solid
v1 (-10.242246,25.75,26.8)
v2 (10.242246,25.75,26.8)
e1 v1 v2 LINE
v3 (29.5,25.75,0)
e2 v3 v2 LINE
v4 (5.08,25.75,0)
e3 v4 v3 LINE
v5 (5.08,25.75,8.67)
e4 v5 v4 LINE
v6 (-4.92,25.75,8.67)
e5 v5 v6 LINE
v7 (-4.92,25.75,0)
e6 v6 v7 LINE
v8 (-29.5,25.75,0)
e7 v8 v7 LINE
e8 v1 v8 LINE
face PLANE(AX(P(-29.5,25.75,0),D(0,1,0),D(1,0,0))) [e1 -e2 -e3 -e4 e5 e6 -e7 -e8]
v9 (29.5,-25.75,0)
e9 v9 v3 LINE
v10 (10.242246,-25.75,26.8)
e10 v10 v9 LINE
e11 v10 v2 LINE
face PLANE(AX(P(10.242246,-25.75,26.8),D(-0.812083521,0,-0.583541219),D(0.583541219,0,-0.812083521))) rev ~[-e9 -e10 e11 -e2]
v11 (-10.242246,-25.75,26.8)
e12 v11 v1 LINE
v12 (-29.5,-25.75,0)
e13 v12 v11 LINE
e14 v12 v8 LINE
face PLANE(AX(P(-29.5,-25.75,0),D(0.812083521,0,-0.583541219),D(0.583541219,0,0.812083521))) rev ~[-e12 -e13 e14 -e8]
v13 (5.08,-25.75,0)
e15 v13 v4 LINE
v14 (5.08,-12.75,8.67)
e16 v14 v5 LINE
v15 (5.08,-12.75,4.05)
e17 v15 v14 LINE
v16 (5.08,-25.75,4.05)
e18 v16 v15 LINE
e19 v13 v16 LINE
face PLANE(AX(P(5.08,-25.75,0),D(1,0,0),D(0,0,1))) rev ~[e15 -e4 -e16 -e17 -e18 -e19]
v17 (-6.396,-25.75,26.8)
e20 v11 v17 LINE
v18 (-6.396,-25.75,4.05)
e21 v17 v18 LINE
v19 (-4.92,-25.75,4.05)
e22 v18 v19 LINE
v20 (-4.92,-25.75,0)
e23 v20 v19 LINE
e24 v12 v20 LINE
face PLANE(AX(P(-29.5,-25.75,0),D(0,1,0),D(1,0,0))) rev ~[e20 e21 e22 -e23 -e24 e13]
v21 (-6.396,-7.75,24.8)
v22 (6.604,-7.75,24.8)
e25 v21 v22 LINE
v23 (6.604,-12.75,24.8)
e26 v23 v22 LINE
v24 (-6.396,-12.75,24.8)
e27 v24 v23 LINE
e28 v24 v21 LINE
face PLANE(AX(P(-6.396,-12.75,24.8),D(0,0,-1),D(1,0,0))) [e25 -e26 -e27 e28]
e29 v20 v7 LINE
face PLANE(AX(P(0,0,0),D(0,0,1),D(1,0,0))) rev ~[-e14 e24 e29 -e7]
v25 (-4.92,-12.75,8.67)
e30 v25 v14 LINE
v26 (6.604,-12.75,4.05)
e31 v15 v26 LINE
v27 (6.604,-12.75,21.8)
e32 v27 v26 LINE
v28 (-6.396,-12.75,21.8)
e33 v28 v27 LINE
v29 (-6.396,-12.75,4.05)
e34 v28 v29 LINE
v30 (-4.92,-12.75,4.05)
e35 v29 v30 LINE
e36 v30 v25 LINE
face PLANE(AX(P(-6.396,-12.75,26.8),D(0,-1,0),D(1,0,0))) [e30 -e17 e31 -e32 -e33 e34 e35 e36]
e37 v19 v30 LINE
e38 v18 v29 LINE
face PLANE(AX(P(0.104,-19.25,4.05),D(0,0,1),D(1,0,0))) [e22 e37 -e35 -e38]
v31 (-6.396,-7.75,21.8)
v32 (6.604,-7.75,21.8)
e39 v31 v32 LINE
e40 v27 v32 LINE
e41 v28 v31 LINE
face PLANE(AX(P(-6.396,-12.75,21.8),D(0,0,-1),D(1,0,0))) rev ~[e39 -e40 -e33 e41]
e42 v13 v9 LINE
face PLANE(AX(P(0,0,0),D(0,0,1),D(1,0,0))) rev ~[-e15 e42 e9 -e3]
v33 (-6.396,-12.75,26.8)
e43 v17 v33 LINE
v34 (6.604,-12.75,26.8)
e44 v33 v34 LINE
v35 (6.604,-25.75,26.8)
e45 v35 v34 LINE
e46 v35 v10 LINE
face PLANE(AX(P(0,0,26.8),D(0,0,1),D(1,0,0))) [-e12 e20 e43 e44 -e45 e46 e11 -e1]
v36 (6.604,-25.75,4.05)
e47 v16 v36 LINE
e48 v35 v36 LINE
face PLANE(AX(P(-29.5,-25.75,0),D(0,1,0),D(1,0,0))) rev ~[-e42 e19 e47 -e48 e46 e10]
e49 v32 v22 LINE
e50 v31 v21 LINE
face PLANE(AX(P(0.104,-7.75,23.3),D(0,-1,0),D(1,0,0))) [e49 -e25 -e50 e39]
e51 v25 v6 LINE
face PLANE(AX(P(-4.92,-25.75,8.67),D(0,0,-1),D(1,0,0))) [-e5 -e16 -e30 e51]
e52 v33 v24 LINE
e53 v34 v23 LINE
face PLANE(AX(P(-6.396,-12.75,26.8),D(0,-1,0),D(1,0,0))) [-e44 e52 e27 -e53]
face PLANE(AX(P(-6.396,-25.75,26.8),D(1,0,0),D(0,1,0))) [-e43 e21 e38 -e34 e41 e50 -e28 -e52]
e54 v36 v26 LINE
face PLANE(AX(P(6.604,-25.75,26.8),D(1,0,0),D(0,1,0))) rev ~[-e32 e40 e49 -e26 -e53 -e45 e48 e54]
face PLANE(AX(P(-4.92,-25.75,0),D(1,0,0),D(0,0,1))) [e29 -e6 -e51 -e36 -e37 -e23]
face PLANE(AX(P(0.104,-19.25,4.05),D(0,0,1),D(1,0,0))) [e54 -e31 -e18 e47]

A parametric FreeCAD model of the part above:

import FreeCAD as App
import Part
import Sketcher

V = App.Vector
Q = App.Units.Quantity

doc = App.newDocument("Part")
body = doc.addObject("PartDesign::Body", "Body")

# Sketch on XY plane
sketch1 = body.newObject("Sketcher::SketchObject", "Sketch")
sketch1.AttachmentSupport = (doc.getObject("XY_Plane"), [""])
sketch1.MapMode = "FlatFace"
sketch1.addGeometry([
    Part.LineSegment(V(-30, 26, 0), V(-30, -26, 0)),
    Part.LineSegment(V(-30, -26, 0), V(30, -26, 0)),
    Part.LineSegment(V(30, -26, 0), V(30, 26, 0)),
    Part.LineSegment(V(30, 26, 0), V(-30, 26, 0)),
], False)
sketch1.addConstraint([
    Sketcher.Constraint("Coincident", 0, 2, 1, 1),
    Sketcher.Constraint("Coincident", 1, 2, 2, 1),
    Sketcher.Constraint("Coincident", 2, 2, 3, 1),
    Sketcher.Constraint("Coincident", 3, 2, 0, 1),
    Sketcher.Constraint("Vertical", 0),
    Sketcher.Constraint("Horizontal", 1),
    Sketcher.Constraint("Vertical", 2),
    Sketcher.Constraint("Horizontal", 3),
    Sketcher.Constraint("Symmetric", 0, 2, 2, 2, -1, 1),
    Sketcher.Constraint("DistanceX", 1, 1, 1, 2, Q("59 mm")),
    Sketcher.Constraint("DistanceY", 0, 2, 0, 1, Q("51.5 mm")),
])
pad1 = body.newObject("PartDesign::Pad", "Pad")
pad1.Profile = sketch1
pad1.Length = 26.8

# Sketch on XZ plane
sketch2 = body.newObject("Sketcher::SketchObject", "Sketch001")
sketch2.AttachmentSupport = (doc.getObject("XZ_Plane"), [""])
sketch2.MapMode = "FlatFace"
sketch2.AttachmentOffset = App.Placement(V(0, 0, 25.75), App.Rotation())
sketch2.addGeometry([
    Part.LineSegment(V(10, 27, 0), V(30, 0, 0)),  # 0
    Part.LineSegment(V(30, 0, 0), V(30, 27, 0)),  # 1
    Part.LineSegment(V(30, 27, 0), V(10, 27, 0)),  # 2
    Part.LineSegment(V(-30, 27, 0), V(-30, 0, 0)),  # 3
    Part.LineSegment(V(-30, 0, 0), V(-10, 27, 0)),  # 4
    Part.LineSegment(V(-10, 27, 0), V(-30, 27, 0)),  # 5
], False)
sketch2.addConstraint([
    Sketcher.Constraint("Coincident", 0, 2, 1, 1),
    Sketcher.Constraint("Coincident", 1, 2, 2, 1),
    Sketcher.Constraint("Coincident", 2, 2, 0, 1),
    Sketcher.Constraint("Coincident", 3, 2, 4, 1),
    Sketcher.Constraint("Coincident", 4, 2, 5, 1),
    Sketcher.Constraint("Coincident", 5, 2, 3, 1),
    Sketcher.Constraint("Vertical", 1),
    Sketcher.Constraint("Horizontal", 2),
    Sketcher.Constraint("Vertical", 3),
    Sketcher.Constraint("Horizontal", 5),
    Sketcher.Constraint("Symmetric", 0, 2, 3, 2, -1, 1),
    Sketcher.Constraint("Symmetric", 2, 2, 4, 2, -2),
    Sketcher.Constraint("PointOnObject", 0, 2, -1),
    Sketcher.Constraint("DistanceY", 1, 1, 1, 2, Q("26.8 mm")),
    Sketcher.Constraint("Angle", 0, Q("-54.299999 deg")),
    Sketcher.Constraint("DistanceX", 3, 2, 0, 2, Q("59 mm")),
])
pocket1 = body.newObject("PartDesign::Pocket", "Pocket")
pocket1.Profile = sketch2
pocket1.Type = "ThroughAll"

# Sketch on XY plane
sketch3 = body.newObject("Sketcher::SketchObject", "Sketch002")
sketch3.AttachmentSupport = (doc.getObject("XY_Plane"), [""])
sketch3.MapMode = "FlatFace"
sketch3.AttachmentOffset = App.Placement(V(0, 0, 26.8), App.Rotation())
sketch3.addGeometry([
    Part.LineSegment(V(-6, -13, 0), V(-6, -26, 0)),
    Part.LineSegment(V(-6, -26, 0), V(7, -26, 0)),
    Part.LineSegment(V(7, -26, 0), V(7, -13, 0)),
    Part.LineSegment(V(7, -13, 0), V(-6, -13, 0)),
], False)
sketch3.addConstraint([
    Sketcher.Constraint("Coincident", 0, 2, 1, 1),
    Sketcher.Constraint("Coincident", 1, 2, 2, 1),
    Sketcher.Constraint("Coincident", 2, 2, 3, 1),
    Sketcher.Constraint("Coincident", 3, 2, 0, 1),
    Sketcher.Constraint("Vertical", 0),
    Sketcher.Constraint("Horizontal", 1),
    Sketcher.Constraint("Vertical", 2),
    Sketcher.Constraint("Horizontal", 3),
    Sketcher.Constraint("Equal", 3, 0),
    Sketcher.Constraint("DistanceX", 1, 1, 1, 2, Q("13 mm")),
    Sketcher.Constraint("DistanceY", 0, 2, -1, 1, Q("25.75 mm")),
    Sketcher.Constraint("DistanceX", 0, 2, -1, 1, Q("6.396 mm")),
])
pocket2 = body.newObject("PartDesign::Pocket", "Pocket001")
pocket2.Profile = sketch3
pocket2.Length = 22.75

# Sketch on XZ plane
sketch4 = body.newObject("Sketcher::SketchObject", "Sketch003")
sketch4.AttachmentSupport = (doc.getObject("XZ_Plane"), [""])
sketch4.MapMode = "FlatFace"
sketch4.AttachmentOffset = App.Placement(V(0, 0, 12.75), App.Rotation())
sketch4.addGeometry([
    Part.LineSegment(V(-6.4, 24.8, 0), V(-6.4, 21.8, 0)),
    Part.LineSegment(V(-6.4, 21.8, 0), V(6.6, 21.8, 0)),
    Part.LineSegment(V(6.6, 21.8, 0), V(6.6, 24.8, 0)),
    Part.LineSegment(V(6.6, 24.8, 0), V(-6.4, 24.8, 0)),
], False)
sketch4.addConstraint([
    Sketcher.Constraint("Coincident", 0, 2, 1, 1),
    Sketcher.Constraint("Coincident", 1, 2, 2, 1),
    Sketcher.Constraint("Coincident", 2, 2, 3, 1),
    Sketcher.Constraint("Coincident", 3, 2, 0, 1),
    Sketcher.Constraint("Vertical", 0),
    Sketcher.Constraint("Horizontal", 1),
    Sketcher.Constraint("Vertical", 2),
    Sketcher.Constraint("Horizontal", 3),
    Sketcher.Constraint("DistanceX", 1, 1, 1, 2, Q("13 mm")),
    Sketcher.Constraint("DistanceY", 0, 2, 0, 1, Q("3 mm")),
    Sketcher.Constraint("DistanceY", -1, 1, 0, 2, Q("21.8 mm")),
    Sketcher.Constraint("DistanceX", 0, 2, -1, 1, Q("6.396 mm")),
])
pocket3 = body.newObject("PartDesign::Pocket", "Pocket002")
pocket3.Profile = sketch4
pocket3.Length = 5

# Sketch on XZ plane
sketch5 = body.newObject("Sketcher::SketchObject", "Sketch004")
sketch5.AttachmentSupport = (doc.getObject("XZ_Plane"), [""])
sketch5.MapMode = "FlatFace"
sketch5.AttachmentOffset = App.Placement(V(0, 0, 25.75), App.Rotation())
sketch5.addGeometry([
    Part.LineSegment(V(-5, 9, 0), V(-5, 0, 0)),
    Part.LineSegment(V(-5, 0, 0), V(5, 0, 0)),
    Part.LineSegment(V(5, 0, 0), V(5, 9, 0)),
    Part.LineSegment(V(5, 9, 0), V(-5, 9, 0)),
], False)
sketch5.addConstraint([
    Sketcher.Constraint("Coincident", 0, 2, 1, 1),
    Sketcher.Constraint("Coincident", 1, 2, 2, 1),
    Sketcher.Constraint("Coincident", 2, 2, 3, 1),
    Sketcher.Constraint("Coincident", 3, 2, 0, 1),
    Sketcher.Constraint("Vertical", 0),
    Sketcher.Constraint("Horizontal", 1),
    Sketcher.Constraint("Vertical", 2),
    Sketcher.Constraint("Horizontal", 3),
    Sketcher.Constraint("PointOnObject", 0, 2, -1),
    Sketcher.Constraint("DistanceX", 1, 1, 1, 2, Q("10 mm")),
    Sketcher.Constraint("DistanceY", 0, 2, 0, 1, Q("8.67 mm")),
    Sketcher.Constraint("DistanceX", 0, 2, -1, 1, Q("4.92 mm")),
])
pocket4 = body.newObject("PartDesign::Pocket", "Pocket003")
pocket4.Profile = sketch5
pocket4.Type = "ThroughAll"

doc.recompute()
